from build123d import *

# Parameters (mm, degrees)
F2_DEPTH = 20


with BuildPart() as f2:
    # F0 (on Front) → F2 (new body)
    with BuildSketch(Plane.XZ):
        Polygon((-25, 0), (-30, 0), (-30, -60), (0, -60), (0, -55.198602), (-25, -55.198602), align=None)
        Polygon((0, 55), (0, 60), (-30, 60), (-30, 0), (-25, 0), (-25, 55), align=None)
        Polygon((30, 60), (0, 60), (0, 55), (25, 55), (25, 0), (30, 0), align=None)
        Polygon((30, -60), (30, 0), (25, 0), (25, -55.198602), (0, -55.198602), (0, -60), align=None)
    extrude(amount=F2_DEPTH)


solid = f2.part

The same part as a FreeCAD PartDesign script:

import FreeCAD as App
import Part
import Sketcher
from FreeCAD import Vector

doc = App.newDocument("Part")
body = doc.addObject("PartDesign::Body", "Body")

sketch1 = doc.addObject("Sketcher::SketchObject", "Sketch")
body.addObject(sketch1)
sketch1.AttachmentSupport = (doc.XZ_Plane, [""])
sketch1.MapMode = "FlatFace"
sketch1.addGeometry([
    Part.LineSegment(Vector(-30, -60, 0), Vector(30, -60, 0)),
    Part.LineSegment(Vector(30, -60, 0), Vector(30, 60, 0)),
    Part.LineSegment(Vector(30, 60, 0), Vector(-30, 60, 0)),
    Part.LineSegment(Vector(-30, 60, 0), Vector(-30, -60, 0)),
    Part.LineSegment(Vector(-25, -55, 0), Vector(-25, 55, 0)),
    Part.LineSegment(Vector(-25, 55, 0), Vector(25, 55, 0)),
    Part.LineSegment(Vector(25, 55, 0), Vector(25, -55, 0)),
    Part.LineSegment(Vector(25, -55, 0), Vector(-25, -55, 0)),
], False)
sketch1.addConstraint([
    Sketcher.Constraint("Coincident", 0, 2, 1, 1),
    Sketcher.Constraint("Coincident", 1, 2, 2, 1),
    Sketcher.Constraint("Coincident", 2, 2, 3, 1),
    Sketcher.Constraint("Coincident", 3, 2, 0, 1),
    Sketcher.Constraint("Coincident", 4, 2, 5, 1),
    Sketcher.Constraint("Coincident", 5, 2, 6, 1),
    Sketcher.Constraint("Coincident", 6, 2, 7, 1),
    Sketcher.Constraint("Coincident", 7, 2, 4, 1),
    Sketcher.Constraint("Horizontal", 0),
    Sketcher.Constraint("Vertical", 1),
    Sketcher.Constraint("Horizontal", 2),
    Sketcher.Constraint("Vertical", 3),
    Sketcher.Constraint("Vertical", 4),
    Sketcher.Constraint("Horizontal", 5),
    Sketcher.Constraint("Vertical", 6),
    Sketcher.Constraint("Horizontal", 7),
    Sketcher.Constraint("Symmetric", 0, 2, 2, 2, -1, 1),
    Sketcher.Constraint("DistanceX", 0, 1, 0, 2, 60.0),
    Sketcher.Constraint("DistanceX", 5, 1, 5, 2, 50.0),
    Sketcher.Constraint("DistanceY", 1, 1, 1, 2, 120.0),
    Sketcher.Constraint("DistanceX", 4, 2, -1, 1, 25.0),
    Sketcher.Constraint("DistanceY", -1, 1, 4, 2, 55.0),
    Sketcher.Constraint("DistanceY", 4, 1, 4, 2, 110.198602),
])
pad1 = doc.addObject("PartDesign::Pad", "Pad")
body.addObject(pad1)
pad1.Profile = sketch1
pad1.Length = 20

doc.recompute()
